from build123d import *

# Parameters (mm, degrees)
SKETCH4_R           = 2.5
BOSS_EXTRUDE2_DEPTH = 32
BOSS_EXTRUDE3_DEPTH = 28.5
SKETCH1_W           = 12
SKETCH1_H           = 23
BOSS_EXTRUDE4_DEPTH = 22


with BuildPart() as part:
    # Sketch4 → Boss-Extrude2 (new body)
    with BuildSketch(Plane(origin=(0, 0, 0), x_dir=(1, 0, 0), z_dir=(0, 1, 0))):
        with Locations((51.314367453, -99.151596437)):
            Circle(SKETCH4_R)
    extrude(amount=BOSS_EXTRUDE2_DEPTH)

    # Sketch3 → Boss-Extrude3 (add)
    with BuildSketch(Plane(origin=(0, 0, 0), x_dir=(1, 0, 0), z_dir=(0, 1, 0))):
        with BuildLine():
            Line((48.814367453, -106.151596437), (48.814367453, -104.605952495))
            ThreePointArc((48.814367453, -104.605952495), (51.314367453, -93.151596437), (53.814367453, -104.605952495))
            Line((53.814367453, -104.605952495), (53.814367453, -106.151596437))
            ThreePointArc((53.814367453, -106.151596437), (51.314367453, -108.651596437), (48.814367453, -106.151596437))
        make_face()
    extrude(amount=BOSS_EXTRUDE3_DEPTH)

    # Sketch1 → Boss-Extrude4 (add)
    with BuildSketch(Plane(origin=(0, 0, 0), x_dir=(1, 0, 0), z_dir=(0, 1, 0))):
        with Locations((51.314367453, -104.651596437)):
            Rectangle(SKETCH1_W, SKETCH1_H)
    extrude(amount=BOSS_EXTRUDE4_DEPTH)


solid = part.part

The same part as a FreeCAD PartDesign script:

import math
import FreeCAD as App
import Part
import Sketcher

doc = App.newDocument("Part")
body = doc.addObject("PartDesign::Body", "Body")

# Sketch on XZ plane
sketch1 = body.newObject("Sketcher::SketchObject", "Sketch")
sketch1.AttachmentSupport = (doc.getObject("XZ_Plane"), [""])
sketch1.MapMode = "FlatFace"
sketch1.addGeometry(Part.Circle(App.Vector(51.3, 99.2, 0), App.Vector(0, 0, 1), 2.5), False)
sketch1.addConstraint([
    Sketcher.Constraint("Diameter", 0, 5.0),
    Sketcher.Constraint("DistanceX", -1, 1, 0, 3, 51.314367),
    Sketcher.Constraint("DistanceY", -1, 1, 0, 3, 99.151596),
])
pad1 = body.newObject("PartDesign::Pad", "Pad")
pad1.Profile = sketch1
pad1.Length = 32
pad1.Reversed = True

# Sketch on XZ plane
sketch2 = body.newObject("Sketcher::SketchObject", "Sketch001")
sketch2.AttachmentSupport = (doc.getObject("XZ_Plane"), [""])
sketch2.MapMode = "FlatFace"
sketch2.addGeometry([
    Part.LineSegment(App.Vector(48.8, 104.6, 0), App.Vector(48.8, 106.2, 0)),
    Part.ArcOfCircle(Part.Circle(App.Vector(51.3, 106.2, 0), App.Vector(0, 0, 1), 2.5), math.radians(0), math.radians(180)),
    Part.LineSegment(App.Vector(53.8, 106.2, 0), App.Vector(53.8, 104.6, 0)),
    Part.ArcOfCircle(Part.Circle(App.Vector(51.3, 99.2, 0), App.Vector(0, 0, 1), 6), math.radians(115), math.radians(425)),
], False)
sketch2.addConstraint([
    Sketcher.Constraint("Tangent", 0, 2, 1, 2),
    Sketcher.Constraint("Tangent", 1, 1, 2, 1),
    Sketcher.Constraint("Coincident", 2, 2, 3, 2),
    Sketcher.Constraint("Coincident", 3, 1, 0, 1),
    Sketcher.Constraint("Vertical", 0),
    Sketcher.Constraint("Vertical", 2),
    Sketcher.Constraint("Horizontal", 2, 2, 3, 1),
    Sketcher.Constraint("Radius", 3, 6.0),
    Sketcher.Constraint("Radius", 1, 2.5),
    Sketcher.Constraint("DistanceY", 3, 3, 1, 3, 7.0),
    Sketcher.Constraint("DistanceX", -1, 1, 1, 3, 51.314367),
    Sketcher.Constraint("DistanceY", -1, 1, 1, 3, 106.151596),
])
pad2 = body.newObject("PartDesign::Pad", "Pad001")
pad2.Profile = sketch2
pad2.Length = 28.5
pad2.Reversed = True

# Sketch on XZ plane
sketch3 = body.newObject("Sketcher::SketchObject", "Sketch002")
sketch3.AttachmentSupport = (doc.getObject("XZ_Plane"), [""])
sketch3.MapMode = "FlatFace"
sketch3.addGeometry([
    Part.LineSegment(App.Vector(45, 93, 0), App.Vector(45, 116, 0)),
    Part.LineSegment(App.Vector(45, 116, 0), App.Vector(57, 116, 0)),
    Part.LineSegment(App.Vector(57, 116, 0), App.Vector(57, 93, 0)),
    Part.LineSegment(App.Vector(57, 93, 0), App.Vector(45, 93, 0)),
], False)
sketch3.addConstraint([
    Sketcher.Constraint("Coincident", 0, 2, 1, 1),
    Sketcher.Constraint("Coincident", 1, 2, 2, 1),
    Sketcher.Constraint("Coincident", 2, 2, 3, 1),
    Sketcher.Constraint("Coincident", 3, 2, 0, 1),
    Sketcher.Constraint("Vertical", 0),
    Sketcher.Constraint("Horizontal", 1),
    Sketcher.Constraint("Vertical", 2),
    Sketcher.Constraint("Horizontal", 3),
    Sketcher.Constraint("DistanceX", 1, 1, 1, 2, 12.0),
    Sketcher.Constraint("DistanceY", 0, 1, 0, 2, 23.0),
    Sketcher.Constraint("DistanceX", -1, 1, 0, 2, 45.314367),
    Sketcher.Constraint("DistanceY", -1, 1, 0, 2, 116.151596),
])
pad3 = body.newObject("PartDesign::Pad", "Pad002")
pad3.Profile = sketch3
pad3.Length = 22
pad3.Reversed = True

doc.recompute()
